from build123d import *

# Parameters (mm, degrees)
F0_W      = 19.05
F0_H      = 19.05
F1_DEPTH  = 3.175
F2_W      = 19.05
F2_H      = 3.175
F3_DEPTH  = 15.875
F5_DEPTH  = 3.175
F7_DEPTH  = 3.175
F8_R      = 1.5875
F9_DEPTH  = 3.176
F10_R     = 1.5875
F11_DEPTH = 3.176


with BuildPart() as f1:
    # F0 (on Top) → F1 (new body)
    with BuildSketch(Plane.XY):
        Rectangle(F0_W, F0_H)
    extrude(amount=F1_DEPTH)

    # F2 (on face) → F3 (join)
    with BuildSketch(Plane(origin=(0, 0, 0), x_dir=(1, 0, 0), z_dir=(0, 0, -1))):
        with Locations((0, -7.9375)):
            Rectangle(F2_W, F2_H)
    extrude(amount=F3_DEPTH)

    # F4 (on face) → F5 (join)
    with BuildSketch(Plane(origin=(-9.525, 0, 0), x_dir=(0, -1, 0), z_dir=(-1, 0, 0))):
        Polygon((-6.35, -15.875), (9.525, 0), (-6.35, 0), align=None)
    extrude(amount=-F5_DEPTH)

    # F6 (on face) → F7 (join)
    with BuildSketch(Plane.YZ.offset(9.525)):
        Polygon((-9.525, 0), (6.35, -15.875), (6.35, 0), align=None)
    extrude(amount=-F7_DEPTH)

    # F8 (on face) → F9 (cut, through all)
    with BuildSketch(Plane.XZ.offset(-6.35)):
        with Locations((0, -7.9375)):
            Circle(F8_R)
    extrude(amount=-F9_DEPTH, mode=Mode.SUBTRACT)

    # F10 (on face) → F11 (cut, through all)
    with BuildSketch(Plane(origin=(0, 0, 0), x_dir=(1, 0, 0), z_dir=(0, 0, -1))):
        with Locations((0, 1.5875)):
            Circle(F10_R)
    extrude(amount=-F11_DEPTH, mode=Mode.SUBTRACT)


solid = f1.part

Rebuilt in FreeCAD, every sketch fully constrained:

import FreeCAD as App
import Part
import Sketcher

V = App.Vector
Q = App.Units.Quantity


def add_polygon(sketch, points):
    """Adds a closed chain of lines whose ends are joined by coincident constraints."""
    first, n = sketch.GeometryCount, len(points)
    for a, b in zip(points, points[1:] + points[:1]):
        sketch.addGeometry(Part.LineSegment(App.Vector(*a, 0), App.Vector(*b, 0)), False)
    for i in range(n):
        sketch.addConstraint(Sketcher.Constraint("Coincident", first + i, 2, first + (i + 1) % n, 1))

doc = App.newDocument("Part")
body = doc.addObject("PartDesign::Body", "Body")

sketch1 = body.newObject("Sketcher::SketchObject", "Sketch")
sketch1.AttachmentSupport = (doc.getObject("XY_Plane"), [""])
sketch1.MapMode = "FlatFace"
add_polygon(sketch1, [(-10, 10), (-10, -10), (10, -10), (10, 10)])
sketch1.addConstraint([
    Sketcher.Constraint("Vertical", 0),
    Sketcher.Constraint("Horizontal", 1),
    Sketcher.Constraint("Vertical", 2),
    Sketcher.Constraint("Horizontal", 3),
    Sketcher.Constraint("Symmetric", 0, 2, 2, 2, -1, 1),
    Sketcher.Constraint("Equal", 3, 0),
    Sketcher.Constraint("DistanceX", 1, 1, 1, 2, Q("0.75 in")),
])
pad1 = body.newObject("PartDesign::Pad", "Pad")
pad1.Profile = sketch1
pad1.Length = Q("0.125 in")

sketch2 = body.newObject("Sketcher::SketchObject", "Sketch001")
sketch2.AttachmentSupport = (doc.getObject("XY_Plane"), [""])
sketch2.MapMode = "FlatFace"
add_polygon(sketch2, [(-9.5, 6.3), (-9.5, 9.5), (9.5, 9.5), (9.5, 6.3)])
sketch2.addConstraint([
    Sketcher.Constraint("Vertical", 0),
    Sketcher.Constraint("Horizontal", 1),
    Sketcher.Constraint("Vertical", 2),
    Sketcher.Constraint("Horizontal", 3),
    Sketcher.Constraint("DistanceX", 1, 1, 1, 2, Q("0.75 in")),
    Sketcher.Constraint("DistanceY", 0, 1, 0, 2, Q("0.125 in")),
    Sketcher.Constraint("DistanceY", -1, 1, 2, 2, Q("0.25 in")),
    Sketcher.Constraint("DistanceX", 0, 2, -1, 1, Q("0.375 in")),
])
pad2 = body.newObject("PartDesign::Pad", "Pad001")
pad2.Profile = sketch2
pad2.Length = Q("0.625 in")
pad2.Reversed = True

sketch3 = body.newObject("Sketcher::SketchObject", "Sketch002")
sketch3.AttachmentSupport = (doc.getObject("YZ_Plane"), [""])
sketch3.MapMode = "FlatFace"
sketch3.AttachmentOffset = App.Placement(V(0, 0, -0.375 * 25.4), App.Rotation())
add_polygon(sketch3, [(6, -16), (-10, 0), (6, 0)])
sketch3.addConstraint([
    Sketcher.Constraint("Horizontal", 1),
    Sketcher.Constraint("Vertical", 2),
    Sketcher.Constraint("PointOnObject", 0, 2, -1),
    Sketcher.Constraint("Equal", 1, 2),
    Sketcher.Constraint("DistanceX", 1, 1, 1, 2, Q("0.625 in")),
    Sketcher.Constraint("DistanceX", -1, 1, 1, 2, Q("0.25 in")),
])
pad3 = body.newObject("PartDesign::Pad", "Pad002")
pad3.Profile = sketch3
pad3.Length = Q("0.125 in")

sketch4 = body.newObject("Sketcher::SketchObject", "Sketch003")
sketch4.AttachmentSupport = (doc.getObject("YZ_Plane"), [""])
sketch4.MapMode = "FlatFace"
sketch4.AttachmentOffset = App.Placement(V(0, 0, 0.375 * 25.4), App.Rotation())
add_polygon(sketch4, [(-10, 0), (6, -16), (6, 0)])
sketch4.addConstraint([
    Sketcher.Constraint("Vertical", 1),
    Sketcher.Constraint("Horizontal", 2),
    Sketcher.Constraint("PointOnObject", 1, 2, -1),
    Sketcher.Constraint("Equal", 2, 1),
    Sketcher.Constraint("DistanceX", 2, 2, 2, 1, Q("0.625 in")),
    Sketcher.Constraint("DistanceX", -1, 1, 0, 2, Q("0.25 in")),
])
pad4 = body.newObject("PartDesign::Pad", "Pad003")
pad4.Profile = sketch4
pad4.Length = Q("0.125 in")
pad4.Reversed = True

sketch5 = body.newObject("Sketcher::SketchObject", "Sketch004")
sketch5.AttachmentSupport = (doc.getObject("XZ_Plane"), [""])
sketch5.MapMode = "FlatFace"
sketch5.AttachmentOffset = App.Placement(V(0, 0, -0.25 * 25.4), App.Rotation())
sketch5.addGeometry(Part.Circle(V(0, -7.9, 0), V(0, 0, 1), 1.6), False)
sketch5.addConstraint([
    Sketcher.Constraint("PointOnObject", 0, 3, -2),
    Sketcher.Constraint("Diameter", 0, Q("0.125 in")),
    Sketcher.Constraint("DistanceY", 0, 3, -1, 1, Q("0.3125 in")),
])
pocket1 = body.newObject("PartDesign::Pocket", "Pocket")
pocket1.Profile = sketch5
pocket1.Type = "ThroughAll"

sketch6 = body.newObject("Sketcher::SketchObject", "Sketch005")
sketch6.AttachmentSupport = (doc.getObject("XY_Plane"), [""])
sketch6.MapMode = "FlatFace"
sketch6.addGeometry(Part.Circle(V(0, -1.6, 0), V(0, 0, 1), 1.6), False)
sketch6.addConstraint([
    Sketcher.Constraint("PointOnObject", 0, 3, -2),
    Sketcher.Constraint("Diameter", 0, Q("0.125 in")),
    Sketcher.Constraint("DistanceY", 0, 3, -1, 1, Q("0.0625 in")),
])
pocket2 = body.newObject("PartDesign::Pocket", "Pocket001")
pocket2.Profile = sketch6
pocket2.Type = "ThroughAll"
pocket2.Reversed = True

doc.recompute()
